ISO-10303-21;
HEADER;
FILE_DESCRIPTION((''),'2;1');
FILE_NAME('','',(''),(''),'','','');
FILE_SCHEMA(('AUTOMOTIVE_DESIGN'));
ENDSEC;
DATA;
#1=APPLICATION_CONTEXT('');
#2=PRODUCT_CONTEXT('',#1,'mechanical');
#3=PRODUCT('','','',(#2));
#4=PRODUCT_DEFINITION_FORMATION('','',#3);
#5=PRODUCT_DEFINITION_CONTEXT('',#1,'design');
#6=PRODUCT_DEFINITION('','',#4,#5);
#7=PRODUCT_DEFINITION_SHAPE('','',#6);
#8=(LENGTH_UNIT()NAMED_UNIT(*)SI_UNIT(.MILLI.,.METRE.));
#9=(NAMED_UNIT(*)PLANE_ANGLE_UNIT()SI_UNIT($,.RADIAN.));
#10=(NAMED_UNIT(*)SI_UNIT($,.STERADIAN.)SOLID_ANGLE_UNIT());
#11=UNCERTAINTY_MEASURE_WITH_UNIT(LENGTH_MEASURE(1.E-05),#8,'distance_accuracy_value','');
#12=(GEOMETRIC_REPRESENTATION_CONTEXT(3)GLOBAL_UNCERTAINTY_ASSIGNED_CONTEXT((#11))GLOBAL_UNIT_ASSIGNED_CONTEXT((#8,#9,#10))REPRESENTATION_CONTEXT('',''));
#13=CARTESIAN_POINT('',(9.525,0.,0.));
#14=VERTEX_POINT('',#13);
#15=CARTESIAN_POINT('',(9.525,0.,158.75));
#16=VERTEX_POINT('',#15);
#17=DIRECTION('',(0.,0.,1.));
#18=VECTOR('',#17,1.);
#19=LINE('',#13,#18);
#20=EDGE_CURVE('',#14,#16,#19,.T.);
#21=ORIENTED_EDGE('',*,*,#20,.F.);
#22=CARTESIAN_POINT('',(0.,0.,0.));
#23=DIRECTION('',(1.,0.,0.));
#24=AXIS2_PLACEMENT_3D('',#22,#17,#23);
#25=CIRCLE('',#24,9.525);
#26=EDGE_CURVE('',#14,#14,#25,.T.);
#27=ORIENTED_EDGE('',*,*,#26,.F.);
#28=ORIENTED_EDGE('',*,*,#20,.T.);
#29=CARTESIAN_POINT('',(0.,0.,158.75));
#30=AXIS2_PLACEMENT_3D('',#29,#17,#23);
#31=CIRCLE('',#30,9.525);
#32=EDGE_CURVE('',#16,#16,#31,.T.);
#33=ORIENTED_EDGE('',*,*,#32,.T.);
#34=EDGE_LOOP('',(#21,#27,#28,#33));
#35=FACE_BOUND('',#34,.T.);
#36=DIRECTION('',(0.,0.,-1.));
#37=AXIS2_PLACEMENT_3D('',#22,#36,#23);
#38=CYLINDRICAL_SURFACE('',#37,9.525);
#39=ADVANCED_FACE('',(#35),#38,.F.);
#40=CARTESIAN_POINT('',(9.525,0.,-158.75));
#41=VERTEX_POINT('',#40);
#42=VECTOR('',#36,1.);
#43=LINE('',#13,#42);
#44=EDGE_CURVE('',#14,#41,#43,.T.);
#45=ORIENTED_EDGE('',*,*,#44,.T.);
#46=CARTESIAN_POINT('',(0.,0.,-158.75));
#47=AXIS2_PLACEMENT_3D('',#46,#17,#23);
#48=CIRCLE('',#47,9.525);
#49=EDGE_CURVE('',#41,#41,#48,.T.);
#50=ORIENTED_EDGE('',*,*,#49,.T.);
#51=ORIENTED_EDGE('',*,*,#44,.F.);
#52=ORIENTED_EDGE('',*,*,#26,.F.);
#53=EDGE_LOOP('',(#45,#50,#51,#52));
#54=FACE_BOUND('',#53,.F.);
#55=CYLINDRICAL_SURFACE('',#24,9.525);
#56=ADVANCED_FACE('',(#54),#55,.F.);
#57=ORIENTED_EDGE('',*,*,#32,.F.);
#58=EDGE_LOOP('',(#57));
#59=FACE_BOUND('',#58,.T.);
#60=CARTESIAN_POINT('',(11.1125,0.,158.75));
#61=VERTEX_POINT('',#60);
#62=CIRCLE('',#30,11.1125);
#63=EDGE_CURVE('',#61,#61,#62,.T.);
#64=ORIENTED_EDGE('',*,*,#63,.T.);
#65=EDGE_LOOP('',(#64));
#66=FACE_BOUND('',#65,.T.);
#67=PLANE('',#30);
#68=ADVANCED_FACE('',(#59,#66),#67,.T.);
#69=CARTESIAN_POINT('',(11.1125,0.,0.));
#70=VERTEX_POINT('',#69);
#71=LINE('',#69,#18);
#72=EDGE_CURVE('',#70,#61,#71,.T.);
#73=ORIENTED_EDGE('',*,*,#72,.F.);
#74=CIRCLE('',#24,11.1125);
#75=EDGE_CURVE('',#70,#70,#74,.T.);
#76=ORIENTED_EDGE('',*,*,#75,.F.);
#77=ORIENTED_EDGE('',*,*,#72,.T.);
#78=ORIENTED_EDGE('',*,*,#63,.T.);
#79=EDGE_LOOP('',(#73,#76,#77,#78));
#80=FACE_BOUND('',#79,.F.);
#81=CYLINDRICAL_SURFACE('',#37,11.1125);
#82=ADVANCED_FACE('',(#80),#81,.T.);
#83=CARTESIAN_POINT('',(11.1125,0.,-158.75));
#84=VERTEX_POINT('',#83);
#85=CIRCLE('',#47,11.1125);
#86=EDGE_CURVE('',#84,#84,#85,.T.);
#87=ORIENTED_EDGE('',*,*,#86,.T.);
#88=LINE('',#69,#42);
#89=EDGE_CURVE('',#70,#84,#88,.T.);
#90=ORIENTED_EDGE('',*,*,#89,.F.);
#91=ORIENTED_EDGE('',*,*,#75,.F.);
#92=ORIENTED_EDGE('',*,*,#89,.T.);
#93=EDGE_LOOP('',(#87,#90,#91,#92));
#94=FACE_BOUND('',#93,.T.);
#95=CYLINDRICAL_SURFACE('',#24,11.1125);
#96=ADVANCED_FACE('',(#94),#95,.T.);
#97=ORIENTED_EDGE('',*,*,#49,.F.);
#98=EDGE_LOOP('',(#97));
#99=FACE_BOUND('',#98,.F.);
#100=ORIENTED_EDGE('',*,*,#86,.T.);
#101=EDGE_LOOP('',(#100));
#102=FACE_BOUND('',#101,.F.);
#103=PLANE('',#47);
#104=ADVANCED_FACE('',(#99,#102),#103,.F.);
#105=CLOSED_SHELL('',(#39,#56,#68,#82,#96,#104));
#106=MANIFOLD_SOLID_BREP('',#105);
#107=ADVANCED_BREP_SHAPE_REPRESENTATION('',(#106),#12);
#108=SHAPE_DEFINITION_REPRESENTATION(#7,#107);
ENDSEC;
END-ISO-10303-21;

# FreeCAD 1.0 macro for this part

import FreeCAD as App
import Part
import Sketcher
Q = App.Units.Quantity

doc = App.newDocument("Part")
body = doc.addObject("PartDesign::Body", "Body")

sketch1 = body.newObject("Sketcher::SketchObject", "Sketch")
sketch1.AttachmentSupport = (doc.getObject("XY_Plane"), [""])
sketch1.MapMode = "FlatFace"
sketch1.addGeometry([
    Part.Circle(App.Vector(0, 0, 0), App.Vector(0, 0, 1), 11),
    Part.Circle(App.Vector(0, 0, 0), App.Vector(0, 0, 1), 10),
], False)
sketch1.addConstraint([
    Sketcher.Constraint("Coincident", 0, 3, -1, 1),
    Sketcher.Constraint("Coincident", 1, 3, -1, 1),
    Sketcher.Constraint("Diameter", 0, Q("0.875 in")),
    Sketcher.Constraint("Diameter", 1, Q("0.75 in")),
])
pad1 = body.newObject("PartDesign::Pad", "Pad")
pad1.Profile = sketch1
pad1.Length = Q("12.5 in")
pad1.Midplane = True

doc.recompute()
